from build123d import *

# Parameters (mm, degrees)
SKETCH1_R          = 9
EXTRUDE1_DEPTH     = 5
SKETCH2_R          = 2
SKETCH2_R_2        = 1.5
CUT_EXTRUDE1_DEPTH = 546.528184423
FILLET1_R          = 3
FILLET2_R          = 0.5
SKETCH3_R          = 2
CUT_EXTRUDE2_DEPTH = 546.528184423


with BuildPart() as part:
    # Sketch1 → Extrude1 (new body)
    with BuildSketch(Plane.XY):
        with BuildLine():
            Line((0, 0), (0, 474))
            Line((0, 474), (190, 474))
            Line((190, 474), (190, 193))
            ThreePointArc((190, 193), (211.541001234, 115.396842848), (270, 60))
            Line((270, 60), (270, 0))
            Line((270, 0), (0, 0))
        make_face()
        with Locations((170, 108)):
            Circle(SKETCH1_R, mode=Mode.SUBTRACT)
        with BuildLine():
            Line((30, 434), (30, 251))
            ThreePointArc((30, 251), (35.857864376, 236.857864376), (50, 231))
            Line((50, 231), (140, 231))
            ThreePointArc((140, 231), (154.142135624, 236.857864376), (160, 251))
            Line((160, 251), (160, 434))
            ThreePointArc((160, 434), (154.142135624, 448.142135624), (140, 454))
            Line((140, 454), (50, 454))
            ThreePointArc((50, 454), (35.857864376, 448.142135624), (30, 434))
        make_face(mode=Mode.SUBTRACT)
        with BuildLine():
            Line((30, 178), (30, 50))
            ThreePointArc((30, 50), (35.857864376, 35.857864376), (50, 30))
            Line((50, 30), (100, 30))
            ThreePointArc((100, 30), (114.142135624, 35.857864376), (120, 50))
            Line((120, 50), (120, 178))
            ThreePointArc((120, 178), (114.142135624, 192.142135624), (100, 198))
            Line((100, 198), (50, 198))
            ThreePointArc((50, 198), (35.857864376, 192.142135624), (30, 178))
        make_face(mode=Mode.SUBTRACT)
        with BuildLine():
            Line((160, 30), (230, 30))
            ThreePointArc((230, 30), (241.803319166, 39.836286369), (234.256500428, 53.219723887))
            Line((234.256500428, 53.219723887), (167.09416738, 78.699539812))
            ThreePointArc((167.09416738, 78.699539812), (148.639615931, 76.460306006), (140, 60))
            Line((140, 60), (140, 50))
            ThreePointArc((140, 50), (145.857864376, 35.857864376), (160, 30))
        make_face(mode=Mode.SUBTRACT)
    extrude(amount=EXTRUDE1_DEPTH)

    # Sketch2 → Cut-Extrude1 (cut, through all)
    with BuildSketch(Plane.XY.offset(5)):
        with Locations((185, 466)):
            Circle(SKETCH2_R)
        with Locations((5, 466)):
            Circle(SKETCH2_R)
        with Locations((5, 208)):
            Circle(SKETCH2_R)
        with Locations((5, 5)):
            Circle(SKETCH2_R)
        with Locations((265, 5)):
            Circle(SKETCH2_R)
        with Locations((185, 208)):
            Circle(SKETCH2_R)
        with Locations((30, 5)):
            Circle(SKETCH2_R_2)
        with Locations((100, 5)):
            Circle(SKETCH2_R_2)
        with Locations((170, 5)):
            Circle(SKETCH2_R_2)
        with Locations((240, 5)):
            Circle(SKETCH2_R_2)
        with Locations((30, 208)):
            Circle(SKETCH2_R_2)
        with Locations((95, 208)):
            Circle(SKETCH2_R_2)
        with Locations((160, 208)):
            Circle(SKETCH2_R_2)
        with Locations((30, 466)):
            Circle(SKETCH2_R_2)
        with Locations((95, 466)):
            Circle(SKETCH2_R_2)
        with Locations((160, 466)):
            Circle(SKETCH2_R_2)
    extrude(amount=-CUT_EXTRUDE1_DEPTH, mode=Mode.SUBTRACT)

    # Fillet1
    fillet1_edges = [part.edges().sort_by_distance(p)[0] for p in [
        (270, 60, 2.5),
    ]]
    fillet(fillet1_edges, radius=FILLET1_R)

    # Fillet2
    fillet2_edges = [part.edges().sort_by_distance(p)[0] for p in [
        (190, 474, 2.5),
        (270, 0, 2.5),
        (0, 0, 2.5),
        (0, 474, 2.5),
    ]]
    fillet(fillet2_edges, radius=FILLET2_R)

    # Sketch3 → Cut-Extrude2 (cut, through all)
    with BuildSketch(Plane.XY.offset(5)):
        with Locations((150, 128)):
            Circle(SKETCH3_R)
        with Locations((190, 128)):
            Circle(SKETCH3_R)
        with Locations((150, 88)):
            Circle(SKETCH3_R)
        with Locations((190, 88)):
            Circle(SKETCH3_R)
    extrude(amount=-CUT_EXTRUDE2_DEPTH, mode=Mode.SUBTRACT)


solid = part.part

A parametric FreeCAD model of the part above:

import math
import FreeCAD as App
import Part
import Sketcher


def edges_at(feature, points):
    """Names of the edges that pass closest to the given points."""
    edges = feature.Shape.Edges
    near = lambda p: min(range(len(edges)), key=lambda i: edges[i].distToShape(Part.Vertex(*p))[0])
    return sorted({f"Edge{near(p) + 1}" for p in points})

doc = App.newDocument("Part")
body = doc.addObject("PartDesign::Body", "Body")

# Sketch on XY plane
sketch1 = body.newObject("Sketcher::SketchObject", "Sketch")
sketch1.AttachmentSupport = (doc.getObject("XY_Plane"), [""])
sketch1.MapMode = "FlatFace"
sketch1.addGeometry(Part.LineSegment(App.Vector(0, 474, 0), App.Vector(0, 0, 0)), False)
sketch1.addGeometry(Part.LineSegment(App.Vector(0, 0, 0), App.Vector(270, 0, 0)), False)
sketch1.addGeometry(Part.LineSegment(App.Vector(270, 0, 0), App.Vector(270, 60, 0)), False)
sketch1.addGeometry(Part.ArcOfCircle(Part.Circle(App.Vector(341, 193, 0), App.Vector(0, 0, 1), 151), math.radians(180), math.radians(242)), False)
sketch1.addGeometry(Part.LineSegment(App.Vector(190, 193, 0), App.Vector(190, 474, 0)), False)
sketch1.addGeometry(Part.LineSegment(App.Vector(190, 474, 0), App.Vector(0, 474, 0)), False)
sketch1.addGeometry(Part.ArcOfCircle(Part.Circle(App.Vector(160, 50, 0), App.Vector(0, 0, 1), 20), math.radians(180), math.radians(270)), False)
sketch1.addGeometry(Part.LineSegment(App.Vector(140, 50, 0), App.Vector(140, 60, 0)), False)
sketch1.addGeometry(Part.ArcOfCircle(Part.Circle(App.Vector(160, 60, 0), App.Vector(0, 0, 1), 20), math.radians(69), math.radians(180)), False)
sketch1.addGeometry(Part.LineSegment(App.Vector(167, 79, 0), App.Vector(234, 53, 0)), False)
sketch1.addGeometry(Part.ArcOfCircle(Part.Circle(App.Vector(230, 42, 0), App.Vector(0, 0, 1), 12), math.radians(-90), math.radians(69)), False)
sketch1.addGeometry(Part.LineSegment(App.Vector(230, 30, 0), App.Vector(160, 30, 0)), False)
sketch1.addGeometry(Part.Circle(App.Vector(170, 108, 0), App.Vector(0, 0, 1), 9), False)
sketch1.addGeometry(Part.ArcOfCircle(Part.Circle(App.Vector(50, 178, 0), App.Vector(0, 0, 1), 20), math.radians(90), math.radians(180)), False)
sketch1.addGeometry(Part.LineSegment(App.Vector(50, 198, 0), App.Vector(100, 198, 0)), False)
sketch1.addGeometry(Part.ArcOfCircle(Part.Circle(App.Vector(100, 178, 0), App.Vector(0, 0, 1), 20), math.radians(0), math.radians(90)), False)
sketch1.addGeometry(Part.LineSegment(App.Vector(120, 178, 0), App.Vector(120, 50, 0)), False)
sketch1.addGeometry(Part.ArcOfCircle(Part.Circle(App.Vector(100, 50, 0), App.Vector(0, 0, 1), 20), math.radians(-90), math.radians(0)), False)
sketch1.addGeometry(Part.LineSegment(App.Vector(100, 30, 0), App.Vector(50, 30, 0)), False)
sketch1.addGeometry(Part.ArcOfCircle(Part.Circle(App.Vector(50, 50, 0), App.Vector(0, 0, 1), 20), math.radians(180), math.radians(270)), False)
sketch1.addGeometry(Part.LineSegment(App.Vector(30, 50, 0), App.Vector(30, 178, 0)), False)
sketch1.addGeometry(Part.ArcOfCircle(Part.Circle(App.Vector(50, 434, 0), App.Vector(0, 0, 1), 20), math.radians(90), math.radians(180)), False)
sketch1.addGeometry(Part.LineSegment(App.Vector(50, 454, 0), App.Vector(140, 454, 0)), False)
sketch1.addGeometry(Part.ArcOfCircle(Part.Circle(App.Vector(140, 434, 0), App.Vector(0, 0, 1), 20), math.radians(0), math.radians(90)), False)
sketch1.addGeometry(Part.LineSegment(App.Vector(160, 434, 0), App.Vector(160, 251, 0)), False)
sketch1.addGeometry(Part.ArcOfCircle(Part.Circle(App.Vector(140, 251, 0), App.Vector(0, 0, 1), 20), math.radians(-90), math.radians(0)), False)
sketch1.addGeometry(Part.LineSegment(App.Vector(140, 231, 0), App.Vector(50, 231, 0)), False)
sketch1.addGeometry(Part.ArcOfCircle(Part.Circle(App.Vector(50, 251, 0), App.Vector(0, 0, 1), 20), math.radians(180), math.radians(270)), False)
sketch1.addGeometry(Part.LineSegment(App.Vector(30, 251, 0), App.Vector(30, 434, 0)), False)
sketch1.addConstraint(Sketcher.Constraint("Coincident", 0, 2, 1, 1))
sketch1.addConstraint(Sketcher.Constraint("Coincident", 1, 2, 2, 1))
sketch1.addConstraint(Sketcher.Constraint("Coincident", 2, 2, 3, 2))
sketch1.addConstraint(Sketcher.Constraint("Tangent", 3, 1, 4, 1))
sketch1.addConstraint(Sketcher.Constraint("Coincident", 4, 2, 5, 1))
sketch1.addConstraint(Sketcher.Constraint("Coincident", 5, 2, 0, 1))
sketch1.addConstraint(Sketcher.Constraint("Tangent", 6, 1, 7, 1))
sketch1.addConstraint(Sketcher.Constraint("Tangent", 7, 2, 8, 2))
sketch1.addConstraint(Sketcher.Constraint("Tangent", 8, 1, 9, 1))
sketch1.addConstraint(Sketcher.Constraint("Tangent", 9, 2, 10, 2))
sketch1.addConstraint(Sketcher.Constraint("Tangent", 10, 1, 11, 1))
sketch1.addConstraint(Sketcher.Constraint("Tangent", 11, 2, 6, 2))
sketch1.addConstraint(Sketcher.Constraint("Tangent", 13, 1, 14, 1))
sketch1.addConstraint(Sketcher.Constraint("Tangent", 14, 2, 15, 2))
sketch1.addConstraint(Sketcher.Constraint("Tangent", 15, 1, 16, 1))
sketch1.addConstraint(Sketcher.Constraint("Tangent", 16, 2, 17, 2))
sketch1.addConstraint(Sketcher.Constraint("Tangent", 17, 1, 18, 1))
sketch1.addConstraint(Sketcher.Constraint("Tangent", 18, 2, 19, 2))
sketch1.addConstraint(Sketcher.Constraint("Tangent", 19, 1, 20, 1))
sketch1.addConstraint(Sketcher.Constraint("Tangent", 20, 2, 13, 2))
sketch1.addConstraint(Sketcher.Constraint("Tangent", 21, 1, 22, 1))
sketch1.addConstraint(Sketcher.Constraint("Tangent", 22, 2, 23, 2))
sketch1.addConstraint(Sketcher.Constraint("Tangent", 23, 1, 24, 1))
sketch1.addConstraint(Sketcher.Constraint("Tangent", 24, 2, 25, 2))
sketch1.addConstraint(Sketcher.Constraint("Tangent", 25, 1, 26, 1))
sketch1.addConstraint(Sketcher.Constraint("Tangent", 26, 2, 27, 2))
sketch1.addConstraint(Sketcher.Constraint("Tangent", 27, 1, 28, 1))
sketch1.addConstraint(Sketcher.Constraint("Tangent", 28, 2, 21, 2))
sketch1.addConstraint(Sketcher.Constraint("Vertical", 0))
sketch1.addConstraint(Sketcher.Constraint("Horizontal", 1))
sketch1.addConstraint(Sketcher.Constraint("Vertical", 2))
sketch1.addConstraint(Sketcher.Constraint("Vertical", 4))
sketch1.addConstraint(Sketcher.Constraint("Horizontal", 5))
sketch1.addConstraint(Sketcher.Constraint("Vertical", 7))
sketch1.addConstraint(Sketcher.Constraint("Horizontal", 11))
sketch1.addConstraint(Sketcher.Constraint("Horizontal", 14))
sketch1.addConstraint(Sketcher.Constraint("Vertical", 16))
sketch1.addConstraint(Sketcher.Constraint("Horizontal", 18))
sketch1.addConstraint(Sketcher.Constraint("Vertical", 20))
sketch1.addConstraint(Sketcher.Constraint("Horizontal", 22))
sketch1.addConstraint(Sketcher.Constraint("Vertical", 24))
sketch1.addConstraint(Sketcher.Constraint("Horizontal", 26))
sketch1.addConstraint(Sketcher.Constraint("Vertical", 28))
sketch1.addConstraint(Sketcher.Constraint("Coincident", 0, 2, -1, 1))
sketch1.addConstraint(Sketcher.Constraint("Equal", 6, 8))
sketch1.addConstraint(Sketcher.Constraint("Equal", 8, 13))
sketch1.addConstraint(Sketcher.Constraint("Equal", 13, 15))
sketch1.addConstraint(Sketcher.Constraint("Equal", 15, 17))
sketch1.addConstraint(Sketcher.Constraint("Equal", 17, 19))
sketch1.addConstraint(Sketcher.Constraint("Equal", 19, 21))
sketch1.addConstraint(Sketcher.Constraint("Equal", 21, 23))
sketch1.addConstraint(Sketcher.Constraint("Equal", 23, 25))
sketch1.addConstraint(Sketcher.Constraint("Equal", 25, 27))
sketch1.addConstraint(Sketcher.Constraint("Horizontal", 6, 3, 17, 3))
sketch1.addConstraint(Sketcher.Constraint("Horizontal", 8, 3, 2, 2))
sketch1.addConstraint(Sketcher.Constraint("Vertical", 19, 3, 21, 3))
sketch1.addConstraint(Sketcher.Constraint("Vertical", 25, 3, 6, 1))
sketch1.addConstraint(Sketcher.Constraint("Diameter", 12, 18.0))
sketch1.addConstraint(Sketcher.Constraint("Radius", 6, 20.0))
sketch1.addConstraint(Sketcher.Constraint("Radius", 10, 12.0))
sketch1.addConstraint(Sketcher.Constraint("DistanceX", 1, 1, 1, 2, 270.0))
sketch1.addConstraint(Sketcher.Constraint("DistanceX", 5, 2, 5, 1, 190.0))
sketch1.addConstraint(Sketcher.Constraint("DistanceX", 11, 2, 11, 1, 70.0))
sketch1.addConstraint(Sketcher.Constraint("DistanceX", 14, 1, 14, 2, 50.0))
sketch1.addConstraint(Sketcher.Constraint("DistanceX", 22, 1, 22, 2, 90.0))
sketch1.addConstraint(Sketcher.Constraint("DistanceY", 0, 2, 0, 1, 474.0))
sketch1.addConstraint(Sketcher.Constraint("DistanceY", 2, 1, 2, 2, 60.0))
sketch1.addConstraint(Sketcher.Constraint("DistanceY", 4, 1, 4, 2, 281.0))
sketch1.addConstraint(Sketcher.Constraint("DistanceY", 7, 1, 7, 2, 10.0))
sketch1.addConstraint(Sketcher.Constraint("DistanceY", 16, 2, 16, 1, 128.0))
sketch1.addConstraint(Sketcher.Constraint("DistanceY", 24, 2, 24, 1, 183.0))
sketch1.addConstraint(Sketcher.Constraint("DistanceX", -1, 1, 6, 3, 160.0))
sketch1.addConstraint(Sketcher.Constraint("DistanceX", -1, 1, 12, 3, 170.0))
sketch1.addConstraint(Sketcher.Constraint("DistanceY", -1, 1, 12, 3, 108.0))
sketch1.addConstraint(Sketcher.Constraint("DistanceY", -1, 1, 21, 3, 434.0))
pad1 = body.newObject("PartDesign::Pad", "Pad")
pad1.Profile = sketch1
pad1.Length = 5

# Sketch on XY plane
sketch2 = body.newObject("Sketcher::SketchObject", "Sketch001")
sketch2.AttachmentSupport = (doc.getObject("XY_Plane"), [""])
sketch2.MapMode = "FlatFace"
sketch2.AttachmentOffset = App.Placement(App.Vector(0, 0, 5), App.Rotation())
sketch2.addGeometry(Part.Circle(App.Vector(185, 466, 0), App.Vector(0, 0, 1), 2), False)
sketch2.addGeometry(Part.Circle(App.Vector(5, 466, 0), App.Vector(0, 0, 1), 2), False)
sketch2.addGeometry(Part.Circle(App.Vector(5, 208, 0), App.Vector(0, 0, 1), 2), False)
sketch2.addGeometry(Part.Circle(App.Vector(5, 5, 0), App.Vector(0, 0, 1), 2), False)
sketch2.addGeometry(Part.Circle(App.Vector(265, 5, 0), App.Vector(0, 0, 1), 2), False)
sketch2.addGeometry(Part.Circle(App.Vector(185, 208, 0), App.Vector(0, 0, 1), 2), False)
sketch2.addGeometry(Part.Circle(App.Vector(30, 5, 0), App.Vector(0, 0, 1), 1.5), False)
sketch2.addGeometry(Part.Circle(App.Vector(100, 5, 0), App.Vector(0, 0, 1), 1.5), False)
sketch2.addGeometry(Part.Circle(App.Vector(170, 5, 0), App.Vector(0, 0, 1), 1.5), False)
sketch2.addGeometry(Part.Circle(App.Vector(240, 5, 0), App.Vector(0, 0, 1), 1.5), False)
sketch2.addGeometry(Part.Circle(App.Vector(30, 208, 0), App.Vector(0, 0, 1), 1.5), False)
sketch2.addGeometry(Part.Circle(App.Vector(95, 208, 0), App.Vector(0, 0, 1), 1.5), False)
sketch2.addGeometry(Part.Circle(App.Vector(160, 208, 0), App.Vector(0, 0, 1), 1.5), False)
sketch2.addGeometry(Part.Circle(App.Vector(30, 466, 0), App.Vector(0, 0, 1), 1.5), False)
sketch2.addGeometry(Part.Circle(App.Vector(95, 466, 0), App.Vector(0, 0, 1), 1.5), False)
sketch2.addGeometry(Part.Circle(App.Vector(160, 466, 0), App.Vector(0, 0, 1), 1.5), False)
sketch2.addConstraint(Sketcher.Constraint("Equal", 0, 1))
sketch2.addConstraint(Sketcher.Constraint("Equal", 1, 2))
sketch2.addConstraint(Sketcher.Constraint("Equal", 2, 3))
sketch2.addConstraint(Sketcher.Constraint("Equal", 3, 4))
sketch2.addConstraint(Sketcher.Constraint("Equal", 4, 5))
sketch2.addConstraint(Sketcher.Constraint("Equal", 6, 7))
sketch2.addConstraint(Sketcher.Constraint("Equal", 7, 8))
sketch2.addConstraint(Sketcher.Constraint("Equal", 8, 9))
sketch2.addConstraint(Sketcher.Constraint("Equal", 9, 10))
sketch2.addConstraint(Sketcher.Constraint("Equal", 10, 11))
sketch2.addConstraint(Sketcher.Constraint("Equal", 11, 12))
sketch2.addConstraint(Sketcher.Constraint("Equal", 12, 13))
sketch2.addConstraint(Sketcher.Constraint("Equal", 13, 14))
sketch2.addConstraint(Sketcher.Constraint("Equal", 14, 15))
sketch2.addConstraint(Sketcher.Constraint("Horizontal", 0, 3, 1, 3))
sketch2.addConstraint(Sketcher.Constraint("Horizontal", 3, 3, 4, 3))
sketch2.addConstraint(Sketcher.Constraint("Horizontal", 2, 3, 5, 3))
sketch2.addConstraint(Sketcher.Constraint("Horizontal", 4, 3, 6, 3))
sketch2.addConstraint(Sketcher.Constraint("Horizontal", 6, 3, 7, 3))
sketch2.addConstraint(Sketcher.Constraint("Horizontal", 7, 3, 8, 3))
sketch2.addConstraint(Sketcher.Constraint("Horizontal", 8, 3, 9, 3))
sketch2.addConstraint(Sketcher.Constraint("Horizontal", 5, 3, 10, 3))
sketch2.addConstraint(Sketcher.Constraint("Horizontal", 10, 3, 11, 3))
sketch2.addConstraint(Sketcher.Constraint("Horizontal", 11, 3, 12, 3))
sketch2.addConstraint(Sketcher.Constraint("Horizontal", 1, 3, 13, 3))
sketch2.addConstraint(Sketcher.Constraint("Horizontal", 13, 3, 14, 3))
sketch2.addConstraint(Sketcher.Constraint("Horizontal", 14, 3, 15, 3))
sketch2.addConstraint(Sketcher.Constraint("Vertical", 1, 3, 2, 3))
sketch2.addConstraint(Sketcher.Constraint("Vertical", 2, 3, 3, 3))
sketch2.addConstraint(Sketcher.Constraint("Vertical", 0, 3, 5, 3))
sketch2.addConstraint(Sketcher.Constraint("Vertical", 6, 3, 10, 3))
sketch2.addConstraint(Sketcher.Constraint("Vertical", 10, 3, 13, 3))
sketch2.addConstraint(Sketcher.Constraint("Vertical", 11, 3, 14, 3))
sketch2.addConstraint(Sketcher.Constraint("Vertical", 12, 3, 15, 3))
sketch2.addConstraint(Sketcher.Constraint("Diameter", 0, 4.0))
sketch2.addConstraint(Sketcher.Constraint("Diameter", 6, 3.0))
sketch2.addConstraint(Sketcher.Constraint("DistanceX", -1, 1, 0, 3, 185.0))
sketch2.addConstraint(Sketcher.Constraint("DistanceY", -1, 1, 0, 3, 466.0))
sketch2.addConstraint(Sketcher.Constraint("DistanceX", -1, 1, 1, 3, 5.0))
sketch2.addConstraint(Sketcher.Constraint("DistanceY", -1, 1, 2, 3, 208.0))
sketch2.addConstraint(Sketcher.Constraint("DistanceY", -1, 1, 3, 3, 5.0))
sketch2.addConstraint(Sketcher.Constraint("DistanceX", -1, 1, 4, 3, 265.0))
sketch2.addConstraint(Sketcher.Constraint("DistanceX", -1, 1, 6, 3, 30.0))
sketch2.addConstraint(Sketcher.Constraint("DistanceX", -1, 1, 7, 3, 100.0))
sketch2.addConstraint(Sketcher.Constraint("DistanceX", -1, 1, 8, 3, 170.0))
sketch2.addConstraint(Sketcher.Constraint("DistanceX", -1, 1, 9, 3, 240.0))
sketch2.addConstraint(Sketcher.Constraint("DistanceX", -1, 1, 11, 3, 95.0))
sketch2.addConstraint(Sketcher.Constraint("DistanceX", -1, 1, 12, 3, 160.0))
pocket1 = body.newObject("PartDesign::Pocket", "Pocket")
pocket1.Profile = sketch2
pocket1.Type = "ThroughAll"
doc.recompute()

fillet = body.newObject("PartDesign::Fillet", "Fillet")
fillet.Base = (pocket1, edges_at(pocket1, [(270, 60, 2.5)]))
fillet.Radius = 3
doc.recompute()

fillet2 = body.newObject("PartDesign::Fillet", "Fillet001")
fillet2.Base = (fillet, edges_at(fillet, [
    (190, 474, 2.5),
    (270, 0, 2.5),
    (0, 0, 2.5),
    (0, 474, 2.5),
]))
fillet2.Radius = 0.5

# Sketch on XY plane
sketch3 = body.newObject("Sketcher::SketchObject", "Sketch002")
sketch3.AttachmentSupport = (doc.getObject("XY_Plane"), [""])
sketch3.MapMode = "FlatFace"
sketch3.AttachmentOffset = App.Placement(App.Vector(0, 0, 5), App.Rotation())
sketch3.addGeometry(Part.Circle(App.Vector(150, 128, 0), App.Vector(0, 0, 1), 2), False)
sketch3.addGeometry(Part.Circle(App.Vector(190, 128, 0), App.Vector(0, 0, 1), 2), False)
sketch3.addGeometry(Part.Circle(App.Vector(150, 88, 0), App.Vector(0, 0, 1), 2), False)
sketch3.addGeometry(Part.Circle(App.Vector(190, 88, 0), App.Vector(0, 0, 1), 2), False)
sketch3.addConstraint(Sketcher.Constraint("Equal", 0, 1))
sketch3.addConstraint(Sketcher.Constraint("Equal", 1, 2))
sketch3.addConstraint(Sketcher.Constraint("Equal", 2, 3))
sketch3.addConstraint(Sketcher.Constraint("Horizontal", 0, 3, 1, 3))
sketch3.addConstraint(Sketcher.Constraint("Horizontal", 2, 3, 3, 3))
sketch3.addConstraint(Sketcher.Constraint("Vertical", 0, 3, 2, 3))
sketch3.addConstraint(Sketcher.Constraint("Vertical", 1, 3, 3, 3))
sketch3.addConstraint(Sketcher.Constraint("Diameter", 0, 4.0))
sketch3.addConstraint(Sketcher.Constraint("DistanceX", -1, 1, 0, 3, 150.0))
sketch3.addConstraint(Sketcher.Constraint("DistanceY", -1, 1, 0, 3, 128.0))
sketch3.addConstraint(Sketcher.Constraint("DistanceX", -1, 1, 1, 3, 190.0))
sketch3.addConstraint(Sketcher.Constraint("DistanceY", -1, 1, 2, 3, 88.0))
pocket2 = body.newObject("PartDesign::Pocket", "Pocket001")
pocket2.Profile = sketch3
pocket2.Type = "ThroughAll"

doc.recompute()
